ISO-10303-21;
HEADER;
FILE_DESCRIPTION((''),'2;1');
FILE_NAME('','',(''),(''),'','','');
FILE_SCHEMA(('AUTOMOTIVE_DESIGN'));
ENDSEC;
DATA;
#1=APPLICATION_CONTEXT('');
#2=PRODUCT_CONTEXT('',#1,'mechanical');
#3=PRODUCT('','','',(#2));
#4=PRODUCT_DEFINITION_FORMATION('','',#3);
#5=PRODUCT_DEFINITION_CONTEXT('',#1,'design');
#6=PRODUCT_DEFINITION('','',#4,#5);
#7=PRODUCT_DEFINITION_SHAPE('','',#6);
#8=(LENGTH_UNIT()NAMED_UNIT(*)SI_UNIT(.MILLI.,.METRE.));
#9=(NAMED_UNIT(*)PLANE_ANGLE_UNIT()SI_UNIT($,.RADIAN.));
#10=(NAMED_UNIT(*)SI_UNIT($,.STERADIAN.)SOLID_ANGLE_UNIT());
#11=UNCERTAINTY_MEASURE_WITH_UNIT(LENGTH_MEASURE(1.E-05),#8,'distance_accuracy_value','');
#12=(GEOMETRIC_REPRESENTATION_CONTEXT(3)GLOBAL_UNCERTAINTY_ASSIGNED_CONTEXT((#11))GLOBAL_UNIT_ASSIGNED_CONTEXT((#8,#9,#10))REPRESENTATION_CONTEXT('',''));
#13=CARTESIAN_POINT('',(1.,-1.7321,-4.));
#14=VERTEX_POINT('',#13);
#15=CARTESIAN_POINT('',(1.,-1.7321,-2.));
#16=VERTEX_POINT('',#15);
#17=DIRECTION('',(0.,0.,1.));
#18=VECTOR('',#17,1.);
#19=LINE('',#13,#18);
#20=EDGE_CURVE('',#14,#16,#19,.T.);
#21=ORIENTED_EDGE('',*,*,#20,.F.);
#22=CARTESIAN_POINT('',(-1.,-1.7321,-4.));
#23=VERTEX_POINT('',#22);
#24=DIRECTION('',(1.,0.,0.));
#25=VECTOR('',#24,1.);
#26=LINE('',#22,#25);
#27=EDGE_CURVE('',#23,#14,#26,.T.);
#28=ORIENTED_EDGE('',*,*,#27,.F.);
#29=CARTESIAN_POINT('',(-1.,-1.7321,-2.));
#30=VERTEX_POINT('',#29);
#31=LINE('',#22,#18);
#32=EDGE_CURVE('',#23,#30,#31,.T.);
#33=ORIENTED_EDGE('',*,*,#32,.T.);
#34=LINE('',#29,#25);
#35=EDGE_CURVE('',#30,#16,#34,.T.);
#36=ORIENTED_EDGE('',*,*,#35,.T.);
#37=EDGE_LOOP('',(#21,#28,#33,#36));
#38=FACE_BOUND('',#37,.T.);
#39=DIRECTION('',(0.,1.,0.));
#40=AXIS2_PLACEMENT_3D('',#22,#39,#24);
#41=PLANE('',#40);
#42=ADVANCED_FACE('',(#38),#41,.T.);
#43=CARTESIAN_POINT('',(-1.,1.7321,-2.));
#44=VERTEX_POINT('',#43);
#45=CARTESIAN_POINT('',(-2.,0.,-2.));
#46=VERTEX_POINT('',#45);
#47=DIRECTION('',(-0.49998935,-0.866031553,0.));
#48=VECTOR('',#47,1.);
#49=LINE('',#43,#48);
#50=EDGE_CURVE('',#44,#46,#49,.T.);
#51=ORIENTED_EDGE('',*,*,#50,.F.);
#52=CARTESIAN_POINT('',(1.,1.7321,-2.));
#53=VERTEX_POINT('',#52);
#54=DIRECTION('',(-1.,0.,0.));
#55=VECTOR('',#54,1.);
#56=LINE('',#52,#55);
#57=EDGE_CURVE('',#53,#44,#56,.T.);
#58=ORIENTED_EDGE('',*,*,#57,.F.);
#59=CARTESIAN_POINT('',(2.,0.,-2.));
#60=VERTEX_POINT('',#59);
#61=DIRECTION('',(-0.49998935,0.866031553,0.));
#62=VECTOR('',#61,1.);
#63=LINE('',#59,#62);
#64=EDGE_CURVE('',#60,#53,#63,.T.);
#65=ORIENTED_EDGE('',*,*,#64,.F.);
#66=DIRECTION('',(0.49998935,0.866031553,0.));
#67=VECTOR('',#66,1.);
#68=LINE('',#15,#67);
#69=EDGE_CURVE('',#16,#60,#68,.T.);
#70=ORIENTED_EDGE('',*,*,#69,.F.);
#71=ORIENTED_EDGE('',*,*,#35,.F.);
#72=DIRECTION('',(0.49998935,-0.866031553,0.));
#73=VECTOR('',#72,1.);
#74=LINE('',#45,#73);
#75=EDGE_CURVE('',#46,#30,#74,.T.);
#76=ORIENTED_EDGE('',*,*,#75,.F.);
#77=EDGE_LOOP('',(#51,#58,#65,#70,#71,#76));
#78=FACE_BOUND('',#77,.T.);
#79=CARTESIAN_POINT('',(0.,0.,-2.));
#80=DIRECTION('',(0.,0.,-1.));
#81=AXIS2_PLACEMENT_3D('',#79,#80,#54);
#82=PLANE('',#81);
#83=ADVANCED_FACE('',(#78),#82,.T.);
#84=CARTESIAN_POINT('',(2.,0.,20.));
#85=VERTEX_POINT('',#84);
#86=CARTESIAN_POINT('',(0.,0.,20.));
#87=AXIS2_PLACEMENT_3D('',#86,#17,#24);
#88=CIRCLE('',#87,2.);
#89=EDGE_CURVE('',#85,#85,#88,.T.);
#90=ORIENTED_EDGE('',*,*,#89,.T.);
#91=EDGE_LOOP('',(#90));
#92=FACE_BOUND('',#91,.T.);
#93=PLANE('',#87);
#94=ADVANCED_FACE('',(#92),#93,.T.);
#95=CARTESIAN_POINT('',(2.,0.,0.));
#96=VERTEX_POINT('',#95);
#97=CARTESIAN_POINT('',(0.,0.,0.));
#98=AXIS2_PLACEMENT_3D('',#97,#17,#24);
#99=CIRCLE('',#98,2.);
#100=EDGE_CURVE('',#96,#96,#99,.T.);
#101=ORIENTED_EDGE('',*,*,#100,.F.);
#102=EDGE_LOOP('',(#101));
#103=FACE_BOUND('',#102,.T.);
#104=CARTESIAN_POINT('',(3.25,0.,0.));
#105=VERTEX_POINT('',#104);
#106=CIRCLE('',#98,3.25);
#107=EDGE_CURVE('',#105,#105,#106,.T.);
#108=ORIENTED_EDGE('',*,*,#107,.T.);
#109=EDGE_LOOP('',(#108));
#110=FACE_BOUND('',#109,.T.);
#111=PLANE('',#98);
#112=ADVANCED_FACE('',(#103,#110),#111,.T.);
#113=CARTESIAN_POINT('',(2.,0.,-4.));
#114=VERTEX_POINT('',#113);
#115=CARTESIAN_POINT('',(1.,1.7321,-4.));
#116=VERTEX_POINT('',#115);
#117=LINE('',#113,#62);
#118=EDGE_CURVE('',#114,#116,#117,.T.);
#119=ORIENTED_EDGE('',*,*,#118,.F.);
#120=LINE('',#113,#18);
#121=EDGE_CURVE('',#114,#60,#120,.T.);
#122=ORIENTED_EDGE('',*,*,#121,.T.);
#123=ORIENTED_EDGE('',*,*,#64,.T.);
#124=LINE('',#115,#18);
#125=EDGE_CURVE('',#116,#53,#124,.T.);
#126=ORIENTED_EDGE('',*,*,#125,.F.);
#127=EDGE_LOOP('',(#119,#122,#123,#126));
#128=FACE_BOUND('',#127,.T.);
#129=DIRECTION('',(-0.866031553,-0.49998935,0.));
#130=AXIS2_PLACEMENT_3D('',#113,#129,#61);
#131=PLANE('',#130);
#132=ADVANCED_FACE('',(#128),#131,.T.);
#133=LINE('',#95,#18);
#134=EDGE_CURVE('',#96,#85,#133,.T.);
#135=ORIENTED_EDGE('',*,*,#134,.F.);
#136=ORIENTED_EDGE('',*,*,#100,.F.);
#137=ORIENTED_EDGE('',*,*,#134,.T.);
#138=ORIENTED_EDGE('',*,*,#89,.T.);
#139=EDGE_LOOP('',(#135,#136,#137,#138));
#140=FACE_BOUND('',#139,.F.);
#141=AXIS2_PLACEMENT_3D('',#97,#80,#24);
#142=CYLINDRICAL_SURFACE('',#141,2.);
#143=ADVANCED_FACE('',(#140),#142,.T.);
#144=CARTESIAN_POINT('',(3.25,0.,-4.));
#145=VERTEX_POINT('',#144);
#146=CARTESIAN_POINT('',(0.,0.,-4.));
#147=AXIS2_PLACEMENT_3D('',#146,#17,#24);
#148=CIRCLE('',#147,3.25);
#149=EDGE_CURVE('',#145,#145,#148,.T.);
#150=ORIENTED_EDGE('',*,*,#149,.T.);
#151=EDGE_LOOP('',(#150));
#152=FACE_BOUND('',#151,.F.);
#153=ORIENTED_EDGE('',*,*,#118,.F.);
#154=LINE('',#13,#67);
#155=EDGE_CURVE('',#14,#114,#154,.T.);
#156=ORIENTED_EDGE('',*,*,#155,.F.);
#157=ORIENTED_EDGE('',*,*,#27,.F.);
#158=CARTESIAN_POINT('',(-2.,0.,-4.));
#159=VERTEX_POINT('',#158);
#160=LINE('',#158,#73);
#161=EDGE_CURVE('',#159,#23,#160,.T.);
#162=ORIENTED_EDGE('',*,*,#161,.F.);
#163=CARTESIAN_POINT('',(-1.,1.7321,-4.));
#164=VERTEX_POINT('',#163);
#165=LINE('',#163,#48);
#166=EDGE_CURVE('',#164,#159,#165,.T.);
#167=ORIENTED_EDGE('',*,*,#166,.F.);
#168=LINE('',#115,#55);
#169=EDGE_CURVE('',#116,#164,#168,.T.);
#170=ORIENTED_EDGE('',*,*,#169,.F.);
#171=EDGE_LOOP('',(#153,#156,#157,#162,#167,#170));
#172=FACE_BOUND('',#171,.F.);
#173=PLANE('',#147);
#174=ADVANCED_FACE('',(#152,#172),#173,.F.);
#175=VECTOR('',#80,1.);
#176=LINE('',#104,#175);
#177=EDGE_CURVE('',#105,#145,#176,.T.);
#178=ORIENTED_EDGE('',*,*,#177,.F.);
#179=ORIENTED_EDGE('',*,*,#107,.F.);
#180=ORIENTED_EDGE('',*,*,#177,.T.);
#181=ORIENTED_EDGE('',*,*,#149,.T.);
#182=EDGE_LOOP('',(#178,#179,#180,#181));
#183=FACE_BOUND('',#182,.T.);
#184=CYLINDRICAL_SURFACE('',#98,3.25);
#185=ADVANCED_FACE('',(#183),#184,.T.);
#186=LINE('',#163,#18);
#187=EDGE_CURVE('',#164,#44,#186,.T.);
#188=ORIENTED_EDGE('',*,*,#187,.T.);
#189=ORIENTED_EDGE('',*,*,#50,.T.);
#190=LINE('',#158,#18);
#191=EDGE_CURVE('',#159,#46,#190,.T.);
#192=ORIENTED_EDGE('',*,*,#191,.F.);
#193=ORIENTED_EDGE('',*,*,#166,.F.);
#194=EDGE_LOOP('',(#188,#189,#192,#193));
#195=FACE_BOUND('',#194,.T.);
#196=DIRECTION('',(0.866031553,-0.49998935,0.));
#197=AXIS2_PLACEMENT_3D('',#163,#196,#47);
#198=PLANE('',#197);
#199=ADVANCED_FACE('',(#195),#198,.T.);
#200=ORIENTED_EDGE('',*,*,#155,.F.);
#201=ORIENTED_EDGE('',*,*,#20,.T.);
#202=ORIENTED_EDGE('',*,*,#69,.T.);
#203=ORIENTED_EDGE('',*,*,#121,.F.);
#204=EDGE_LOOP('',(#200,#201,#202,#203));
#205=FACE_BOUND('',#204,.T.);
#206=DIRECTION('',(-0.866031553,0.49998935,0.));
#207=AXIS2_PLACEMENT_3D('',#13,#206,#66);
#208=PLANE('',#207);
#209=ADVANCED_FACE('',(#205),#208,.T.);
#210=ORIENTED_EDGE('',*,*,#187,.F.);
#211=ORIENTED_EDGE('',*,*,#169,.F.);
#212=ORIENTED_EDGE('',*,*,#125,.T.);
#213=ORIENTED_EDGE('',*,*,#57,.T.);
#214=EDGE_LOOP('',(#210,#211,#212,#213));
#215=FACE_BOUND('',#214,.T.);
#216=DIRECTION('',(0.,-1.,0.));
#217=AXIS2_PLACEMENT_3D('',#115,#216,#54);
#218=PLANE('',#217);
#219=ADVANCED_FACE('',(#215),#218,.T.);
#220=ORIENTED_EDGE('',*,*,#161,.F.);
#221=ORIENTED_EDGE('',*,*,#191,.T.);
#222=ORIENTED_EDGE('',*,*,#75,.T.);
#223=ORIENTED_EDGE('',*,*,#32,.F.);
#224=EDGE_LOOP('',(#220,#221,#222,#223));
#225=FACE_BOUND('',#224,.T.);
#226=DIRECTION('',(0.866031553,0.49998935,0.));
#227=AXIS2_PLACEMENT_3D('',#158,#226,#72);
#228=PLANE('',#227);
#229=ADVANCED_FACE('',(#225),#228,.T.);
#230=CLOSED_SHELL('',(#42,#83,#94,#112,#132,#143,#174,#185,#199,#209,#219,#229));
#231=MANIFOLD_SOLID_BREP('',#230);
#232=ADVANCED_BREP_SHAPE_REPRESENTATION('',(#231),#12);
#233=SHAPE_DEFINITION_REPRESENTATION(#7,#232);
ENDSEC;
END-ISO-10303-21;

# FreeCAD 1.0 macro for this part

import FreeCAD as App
import Part
import Sketcher

V = App.Vector
Q = App.Units.Quantity

doc = App.newDocument("Part")
body = doc.addObject("PartDesign::Body", "Body")

# Sketch on XY plane
sketch1 = doc.addObject("Sketcher::SketchObject", "Sketch")
body.addObject(sketch1)
sketch1.AttachmentSupport = (doc.XY_Plane, [""])
sketch1.MapMode = "FlatFace"
sketch1.addGeometry(Part.Circle(V(0, 0, 0), V(0, 0, 1), 2), False)
sketch1.addConstraint(Sketcher.Constraint("Coincident", 0, 3, -1, 1))
sketch1.addConstraint(Sketcher.Constraint("Diameter", 0, 4.0))
pad1 = doc.addObject("PartDesign::Pad", "Pad")
body.addObject(pad1)
pad1.Profile = sketch1
pad1.Length = 20

# Sketch on XY plane
sketch2 = doc.addObject("Sketcher::SketchObject", "Sketch001")
body.addObject(sketch2)
sketch2.AttachmentSupport = (doc.XY_Plane, [""])
sketch2.MapMode = "FlatFace"
sketch2.addGeometry(Part.Circle(V(0, 0, 0), V(0, 0, 1), 3.2), False)
sketch2.addConstraint(Sketcher.Constraint("Coincident", 0, 3, -1, 1))
sketch2.addConstraint(Sketcher.Constraint("Diameter", 0, 6.5))
pad2 = doc.addObject("PartDesign::Pad", "Pad001")
body.addObject(pad2)
pad2.Profile = sketch2
pad2.Length = 4
pad2.Reversed = True

# Sketch on XY plane
sketch3 = doc.addObject("Sketcher::SketchObject", "Sketch002")
body.addObject(sketch3)
sketch3.AttachmentSupport = (doc.XY_Plane, [""])
sketch3.MapMode = "FlatFace"
sketch3.AttachmentOffset = App.Placement(V(0, 0, -4), App.Rotation())
sketch3.addGeometry(Part.LineSegment(V(-1, -1.7, 0), V(-2, 0, 0)), False)
sketch3.addGeometry(Part.LineSegment(V(-2, 0, 0), V(-1, 1.7, 0)), False)
sketch3.addGeometry(Part.LineSegment(V(-1, 1.7, 0), V(1, 1.7, 0)), False)
sketch3.addGeometry(Part.LineSegment(V(1, 1.7, 0), V(2, 0, 0)), False)
sketch3.addGeometry(Part.LineSegment(V(2, 0, 0), V(1, -1.7, 0)), False)
sketch3.addGeometry(Part.LineSegment(V(1, -1.7, 0), V(-1, -1.7, 0)), False)
sketch3.addConstraint(Sketcher.Constraint("Coincident", 0, 2, 1, 1))
sketch3.addConstraint(Sketcher.Constraint("Coincident", 1, 2, 2, 1))
sketch3.addConstraint(Sketcher.Constraint("Coincident", 2, 2, 3, 1))
sketch3.addConstraint(Sketcher.Constraint("Coincident", 3, 2, 4, 1))
sketch3.addConstraint(Sketcher.Constraint("Coincident", 4, 2, 5, 1))
sketch3.addConstraint(Sketcher.Constraint("Coincident", 5, 2, 0, 1))
sketch3.addConstraint(Sketcher.Constraint("Horizontal", 2))
sketch3.addConstraint(Sketcher.Constraint("Horizontal", 5))
sketch3.addConstraint(Sketcher.Constraint("Symmetric", 0, 2, 3, 2, -1, 1))
sketch3.addConstraint(Sketcher.Constraint("Symmetric", 1, 2, 4, 2, -1, 1))
sketch3.addConstraint(Sketcher.Constraint("PointOnObject", 0, 2, -1))
sketch3.addConstraint(Sketcher.Constraint("Parallel", 0, 3))
sketch3.addConstraint(Sketcher.Constraint("Vertical", 2, 2, 4, 2))
sketch3.addConstraint(Sketcher.Constraint("DistanceX", 0, 2, 3, 2, 4.0))
sketch3.addConstraint(Sketcher.Constraint("DistanceX", 2, 1, 2, 2, 2.0))
sketch3.addConstraint(Sketcher.Constraint("Angle", 0, Q("119.9993 deg")))
pocket1 = doc.addObject("PartDesign::Pocket", "Pocket")
body.addObject(pocket1)
pocket1.Profile = sketch3
pocket1.Length = 2
pocket1.Reversed = True

doc.recompute()
